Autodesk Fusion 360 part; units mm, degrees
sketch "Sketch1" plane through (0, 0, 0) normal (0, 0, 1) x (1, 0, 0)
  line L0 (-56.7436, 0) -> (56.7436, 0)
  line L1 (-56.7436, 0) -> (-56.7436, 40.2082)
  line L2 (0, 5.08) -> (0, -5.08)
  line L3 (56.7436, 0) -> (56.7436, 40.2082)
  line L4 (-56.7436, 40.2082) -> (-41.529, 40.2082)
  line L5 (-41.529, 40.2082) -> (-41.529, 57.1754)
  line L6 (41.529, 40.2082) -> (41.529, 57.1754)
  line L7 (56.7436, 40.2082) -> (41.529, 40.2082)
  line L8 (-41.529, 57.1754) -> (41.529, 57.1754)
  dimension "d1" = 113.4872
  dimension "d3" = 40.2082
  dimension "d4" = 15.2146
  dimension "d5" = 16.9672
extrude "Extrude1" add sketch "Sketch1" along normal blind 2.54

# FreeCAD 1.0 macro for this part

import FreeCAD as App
import Part
import Sketcher

V = App.Vector
Q = App.Units.Quantity


def add_polygon(sketch, points):
    """Adds a closed chain of lines whose ends are joined by coincident constraints."""
    first, n = sketch.GeometryCount, len(points)
    for a, b in zip(points, points[1:] + points[:1]):
        sketch.addGeometry(Part.LineSegment(App.Vector(*a, 0), App.Vector(*b, 0)), False)
    for i in range(n):
        sketch.addConstraint(Sketcher.Constraint("Coincident", first + i, 2, first + (i + 1) % n, 1))

doc = App.newDocument("Part")
params = doc.addObject("Spreadsheet::Sheet", "Params")
for row, (alias, value) in enumerate([
    ("sketch1_width", "4.468 in"),
    ("sketch1_width2", "0.599 in"),
    ("sketch1_height", "1.583 in"),
    ("sketch1_height2", "0.668 in"),
    ("pad1_length", "0.1 in"),
], start=1):
    params.set(f"A{row}", alias)
    params.set(f"B{row}", "=" + value)
    params.setAlias(f"B{row}", alias)

body = doc.addObject("PartDesign::Body", "Body")

# Sketch on XY plane
sketch1 = body.newObject("Sketcher::SketchObject", "Sketch")
sketch1.AttachmentSupport = (doc.getObject("XY_Plane"), [""])
sketch1.MapMode = "FlatFace"
add_polygon(sketch1, [(-57, 40), (-57, 0), (57, 0), (57, 40), (42, 40), (42, 57), (-42, 57), (-42, 40)])  # lines 0-7
sketch1.addConstraint([
    Sketcher.Constraint("Vertical", 0),
    Sketcher.Constraint("Horizontal", 1),
    Sketcher.Constraint("Vertical", 2),
    Sketcher.Constraint("Horizontal", 3),
    Sketcher.Constraint("Vertical", 4),
    Sketcher.Constraint("Horizontal", 5),
    Sketcher.Constraint("Vertical", 6),
    Sketcher.Constraint("Horizontal", 7),
    Sketcher.Constraint("Symmetric", 0, 2, 1, 2, -1, 1),
    Sketcher.Constraint("Symmetric", 3, 2, 6, 2, -2),
    Sketcher.Constraint("DistanceX", 1, 1, 1, 2, Q("4.468 in")),
    Sketcher.Constraint("DistanceX", 3, 2, 3, 1, Q("0.599 in")),
    Sketcher.Constraint("DistanceY", 0, 2, 0, 1, Q("1.583 in")),
    Sketcher.Constraint("DistanceY", 4, 1, 4, 2, Q("0.668 in")),
])
sketch1.setExpression("Constraints[18]", "Params.sketch1_width")
sketch1.setExpression("Constraints[19]", "Params.sketch1_width2")
sketch1.setExpression("Constraints[20]", "Params.sketch1_height")
sketch1.setExpression("Constraints[21]", "Params.sketch1_height2")
pad1 = body.newObject("PartDesign::Pad", "Pad")
pad1.Profile = sketch1
pad1.setExpression("Length", "Params.pad1_length")

doc.recompute()
